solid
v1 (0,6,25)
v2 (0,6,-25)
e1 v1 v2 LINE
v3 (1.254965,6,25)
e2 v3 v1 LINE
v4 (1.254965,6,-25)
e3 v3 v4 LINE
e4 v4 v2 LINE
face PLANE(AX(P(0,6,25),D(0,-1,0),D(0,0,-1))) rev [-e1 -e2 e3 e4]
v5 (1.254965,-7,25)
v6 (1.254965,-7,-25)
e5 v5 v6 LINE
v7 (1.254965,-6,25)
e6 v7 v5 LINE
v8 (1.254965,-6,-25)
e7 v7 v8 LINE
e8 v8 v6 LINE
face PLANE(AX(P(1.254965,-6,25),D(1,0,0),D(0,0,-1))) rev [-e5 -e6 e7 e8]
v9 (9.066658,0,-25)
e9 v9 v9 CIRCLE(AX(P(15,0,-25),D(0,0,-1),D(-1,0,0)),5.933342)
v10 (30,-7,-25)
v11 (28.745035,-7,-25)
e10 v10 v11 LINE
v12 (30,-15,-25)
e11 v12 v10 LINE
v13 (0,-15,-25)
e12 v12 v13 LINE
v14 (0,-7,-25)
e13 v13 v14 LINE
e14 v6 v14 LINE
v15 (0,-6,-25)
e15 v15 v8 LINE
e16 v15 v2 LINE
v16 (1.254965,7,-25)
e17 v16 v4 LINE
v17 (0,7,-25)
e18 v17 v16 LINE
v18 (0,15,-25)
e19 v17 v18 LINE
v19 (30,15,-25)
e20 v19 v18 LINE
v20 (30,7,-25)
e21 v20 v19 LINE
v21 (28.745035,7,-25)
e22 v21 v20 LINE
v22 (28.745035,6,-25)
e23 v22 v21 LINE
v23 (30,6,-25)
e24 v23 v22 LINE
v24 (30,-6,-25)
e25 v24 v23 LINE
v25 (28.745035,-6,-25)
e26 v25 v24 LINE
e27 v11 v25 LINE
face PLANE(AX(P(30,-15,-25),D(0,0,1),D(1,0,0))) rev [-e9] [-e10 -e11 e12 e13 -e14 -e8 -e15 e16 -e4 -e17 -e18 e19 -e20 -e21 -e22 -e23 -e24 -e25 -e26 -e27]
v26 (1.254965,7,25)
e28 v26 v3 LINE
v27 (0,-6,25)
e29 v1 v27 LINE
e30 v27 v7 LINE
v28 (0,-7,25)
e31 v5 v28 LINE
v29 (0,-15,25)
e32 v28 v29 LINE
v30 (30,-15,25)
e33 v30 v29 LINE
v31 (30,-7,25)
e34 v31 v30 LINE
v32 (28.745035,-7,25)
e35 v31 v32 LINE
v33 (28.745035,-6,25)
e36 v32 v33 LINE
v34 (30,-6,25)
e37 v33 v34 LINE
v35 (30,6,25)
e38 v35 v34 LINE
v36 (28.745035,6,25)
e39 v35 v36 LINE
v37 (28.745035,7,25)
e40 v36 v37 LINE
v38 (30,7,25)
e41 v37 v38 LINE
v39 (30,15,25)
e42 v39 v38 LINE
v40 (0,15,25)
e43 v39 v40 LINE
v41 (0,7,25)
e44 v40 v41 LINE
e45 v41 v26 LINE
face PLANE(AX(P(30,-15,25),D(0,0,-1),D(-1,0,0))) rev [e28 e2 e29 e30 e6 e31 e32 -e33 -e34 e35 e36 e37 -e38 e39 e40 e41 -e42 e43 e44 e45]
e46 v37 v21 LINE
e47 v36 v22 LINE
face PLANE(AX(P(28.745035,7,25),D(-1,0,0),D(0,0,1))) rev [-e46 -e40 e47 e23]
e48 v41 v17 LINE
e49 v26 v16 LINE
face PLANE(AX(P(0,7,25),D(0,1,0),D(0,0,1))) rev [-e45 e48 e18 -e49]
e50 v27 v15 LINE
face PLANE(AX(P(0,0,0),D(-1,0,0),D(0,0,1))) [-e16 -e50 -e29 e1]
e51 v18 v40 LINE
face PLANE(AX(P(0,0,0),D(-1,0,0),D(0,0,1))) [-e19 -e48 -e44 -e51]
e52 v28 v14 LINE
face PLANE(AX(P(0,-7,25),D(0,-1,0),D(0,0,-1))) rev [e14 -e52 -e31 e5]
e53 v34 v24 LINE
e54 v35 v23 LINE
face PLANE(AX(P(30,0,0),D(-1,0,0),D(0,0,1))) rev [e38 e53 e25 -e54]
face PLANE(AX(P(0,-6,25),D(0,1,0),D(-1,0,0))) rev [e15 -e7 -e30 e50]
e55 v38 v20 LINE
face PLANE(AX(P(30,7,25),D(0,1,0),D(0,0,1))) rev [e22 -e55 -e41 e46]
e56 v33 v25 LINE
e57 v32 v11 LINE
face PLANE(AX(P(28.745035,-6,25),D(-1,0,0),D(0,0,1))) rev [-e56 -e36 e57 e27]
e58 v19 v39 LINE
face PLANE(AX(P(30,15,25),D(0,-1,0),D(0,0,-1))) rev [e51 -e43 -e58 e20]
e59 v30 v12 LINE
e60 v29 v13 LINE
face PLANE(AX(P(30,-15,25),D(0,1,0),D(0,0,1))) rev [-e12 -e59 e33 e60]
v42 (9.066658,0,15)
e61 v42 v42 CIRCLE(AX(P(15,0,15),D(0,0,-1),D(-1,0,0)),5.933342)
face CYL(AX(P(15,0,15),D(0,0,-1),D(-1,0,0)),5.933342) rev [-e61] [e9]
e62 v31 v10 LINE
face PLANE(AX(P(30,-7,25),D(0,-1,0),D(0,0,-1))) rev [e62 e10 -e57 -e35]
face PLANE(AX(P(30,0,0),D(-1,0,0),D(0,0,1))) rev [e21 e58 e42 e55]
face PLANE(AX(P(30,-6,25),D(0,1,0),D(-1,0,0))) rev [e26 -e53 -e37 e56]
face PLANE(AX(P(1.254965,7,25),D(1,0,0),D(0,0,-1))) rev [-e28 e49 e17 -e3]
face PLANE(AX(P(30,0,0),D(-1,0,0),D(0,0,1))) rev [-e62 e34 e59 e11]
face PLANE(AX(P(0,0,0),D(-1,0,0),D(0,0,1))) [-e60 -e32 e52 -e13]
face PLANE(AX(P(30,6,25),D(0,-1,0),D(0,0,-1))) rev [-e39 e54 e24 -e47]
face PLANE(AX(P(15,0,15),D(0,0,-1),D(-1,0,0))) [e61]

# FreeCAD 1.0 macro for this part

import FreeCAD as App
import Part
import Sketcher

V = App.Vector

doc = App.newDocument("Part")
body = doc.addObject("PartDesign::Body", "Body")

# Sketch on YZ plane
sketch1 = body.newObject("Sketcher::SketchObject", "Sketch")
sketch1.AttachmentSupport = (doc.getObject("YZ_Plane"), [""])
sketch1.MapMode = "FlatFace"
sketch1.addGeometry(Part.LineSegment(V(15, 25, 0), V(-15, 25, 0)), False)
sketch1.addGeometry(Part.LineSegment(V(-15, 25, 0), V(-15, -25, 0)), False)
sketch1.addGeometry(Part.LineSegment(V(-15, -25, 0), V(15, -25, 0)), False)
sketch1.addGeometry(Part.LineSegment(V(15, -25, 0), V(15, 25, 0)), False)
sketch1.addConstraint(Sketcher.Constraint("Coincident", 0, 2, 1, 1))
sketch1.addConstraint(Sketcher.Constraint("Coincident", 1, 2, 2, 1))
sketch1.addConstraint(Sketcher.Constraint("Coincident", 2, 2, 3, 1))
sketch1.addConstraint(Sketcher.Constraint("Coincident", 3, 2, 0, 1))
sketch1.addConstraint(Sketcher.Constraint("Horizontal", 0))
sketch1.addConstraint(Sketcher.Constraint("Vertical", 1))
sketch1.addConstraint(Sketcher.Constraint("Horizontal", 2))
sketch1.addConstraint(Sketcher.Constraint("Vertical", 3))
sketch1.addConstraint(Sketcher.Constraint("Symmetric", 0, 2, 2, 2, -1, 1))
sketch1.addConstraint(Sketcher.Constraint("DistanceX", 0, 2, 0, 1, 30.0))
sketch1.addConstraint(Sketcher.Constraint("DistanceY", 1, 2, 1, 1, 50.0))
pad1 = body.newObject("PartDesign::Pad", "Pad")
pad1.Profile = sketch1
pad1.Length = 30

# Sketch on XY plane
sketch2 = body.newObject("Sketcher::SketchObject", "Sketch001")
sketch2.AttachmentSupport = (doc.getObject("XY_Plane"), [""])
sketch2.MapMode = "FlatFace"
sketch2.AttachmentOffset = App.Placement(V(0, 0, -25), App.Rotation())
sketch2.addGeometry(Part.Circle(V(15, 0, 0), V(0, 0, 1), 5.933342), False)
sketch2.addConstraint(Sketcher.Constraint("PointOnObject", 0, 3, -1))
sketch2.addConstraint(Sketcher.Constraint("DistanceX", -1, 1, 0, 3, 15.0))
sketch2.addConstraint(Sketcher.Constraint("Diameter", 0, 11.866684))
pocket1 = body.newObject("PartDesign::Pocket", "Pocket")
pocket1.Profile = sketch2
pocket1.Length = 40
pocket1.Reversed = True

# Sketch on XY plane
sketch3 = body.newObject("Sketcher::SketchObject", "Sketch002")
sketch3.AttachmentSupport = (doc.getObject("XY_Plane"), [""])
sketch3.MapMode = "FlatFace"
sketch3.AttachmentOffset = App.Placement(V(0, 0, -25), App.Rotation())
sketch3.addGeometry(Part.LineSegment(V(30, 7, 0), V(30, 6, 0)), False)
sketch3.addGeometry(Part.LineSegment(V(30, 6, 0), V(28.745035, 6, 0)), False)
sketch3.addGeometry(Part.LineSegment(V(28.745035, 6, 0), V(28.745035, 7, 0)), False)
sketch3.addGeometry(Part.LineSegment(V(28.745035, 7, 0), V(30, 7, 0)), False)
sketch3.addGeometry(Part.LineSegment(V(30, -6, 0), V(30, -7, 0)), False)
sketch3.addGeometry(Part.LineSegment(V(30, -7, 0), V(28.745035, -7, 0)), False)
sketch3.addGeometry(Part.LineSegment(V(28.745035, -7, 0), V(28.745035, -6, 0)), False)
sketch3.addGeometry(Part.LineSegment(V(28.745035, -6, 0), V(30, -6, 0)), False)
sketch3.addGeometry(Part.LineSegment(V(1.254965, -6, 0), V(1.254965, -7, 0)), False)
sketch3.addGeometry(Part.LineSegment(V(1.254965, -7, 0), V(0, -7, 0)), False)
sketch3.addGeometry(Part.LineSegment(V(0, -7, 0), V(0, -6, 0)), False)
sketch3.addGeometry(Part.LineSegment(V(0, -6, 0), V(1.254965, -6, 0)), False)
sketch3.addGeometry(Part.LineSegment(V(1.254965, 7, 0), V(1.254965, 6, 0)), False)
sketch3.addGeometry(Part.LineSegment(V(1.254965, 6, 0), V(0, 6, 0)), False)
sketch3.addGeometry(Part.LineSegment(V(0, 6, 0), V(0, 7, 0)), False)
sketch3.addGeometry(Part.LineSegment(V(0, 7, 0), V(1.254965, 7, 0)), False)
sketch3.addConstraint(Sketcher.Constraint("Coincident", 0, 2, 1, 1))
sketch3.addConstraint(Sketcher.Constraint("Coincident", 1, 2, 2, 1))
sketch3.addConstraint(Sketcher.Constraint("Coincident", 2, 2, 3, 1))
sketch3.addConstraint(Sketcher.Constraint("Coincident", 3, 2, 0, 1))
sketch3.addConstraint(Sketcher.Constraint("Coincident", 4, 2, 5, 1))
sketch3.addConstraint(Sketcher.Constraint("Coincident", 5, 2, 6, 1))
sketch3.addConstraint(Sketcher.Constraint("Coincident", 6, 2, 7, 1))
sketch3.addConstraint(Sketcher.Constraint("Coincident", 7, 2, 4, 1))
sketch3.addConstraint(Sketcher.Constraint("Coincident", 8, 2, 9, 1))
sketch3.addConstraint(Sketcher.Constraint("Coincident", 9, 2, 10, 1))
sketch3.addConstraint(Sketcher.Constraint("Coincident", 10, 2, 11, 1))
sketch3.addConstraint(Sketcher.Constraint("Coincident", 11, 2, 8, 1))
sketch3.addConstraint(Sketcher.Constraint("Coincident", 12, 2, 13, 1))
sketch3.addConstraint(Sketcher.Constraint("Coincident", 13, 2, 14, 1))
sketch3.addConstraint(Sketcher.Constraint("Coincident", 14, 2, 15, 1))
sketch3.addConstraint(Sketcher.Constraint("Coincident", 15, 2, 12, 1))
sketch3.addConstraint(Sketcher.Constraint("Vertical", 0))
sketch3.addConstraint(Sketcher.Constraint("Horizontal", 1))
sketch3.addConstraint(Sketcher.Constraint("Vertical", 2))
sketch3.addConstraint(Sketcher.Constraint("Horizontal", 3))
sketch3.addConstraint(Sketcher.Constraint("Vertical", 4))
sketch3.addConstraint(Sketcher.Constraint("Horizontal", 5))
sketch3.addConstraint(Sketcher.Constraint("Vertical", 6))
sketch3.addConstraint(Sketcher.Constraint("Horizontal", 7))
sketch3.addConstraint(Sketcher.Constraint("Vertical", 8))
sketch3.addConstraint(Sketcher.Constraint("Horizontal", 9))
sketch3.addConstraint(Sketcher.Constraint("Vertical", 10))
sketch3.addConstraint(Sketcher.Constraint("Horizontal", 11))
sketch3.addConstraint(Sketcher.Constraint("Vertical", 12))
sketch3.addConstraint(Sketcher.Constraint("Horizontal", 13))
sketch3.addConstraint(Sketcher.Constraint("Vertical", 14))
sketch3.addConstraint(Sketcher.Constraint("Horizontal", 15))
sketch3.addConstraint(Sketcher.Constraint("Symmetric", 10, 2, 13, 2, -1, 1))
sketch3.addConstraint(Sketcher.Constraint("Symmetric", 3, 2, 4, 2, -1))
sketch3.addConstraint(Sketcher.Constraint("Symmetric", 1, 2, 6, 2, -1))
sketch3.addConstraint(Sketcher.Constraint("Symmetric", 9, 2, 14, 2, -1))
sketch3.addConstraint(Sketcher.Constraint("Horizontal", 5, 2, 8, 2))
sketch3.addConstraint(Sketcher.Constraint("Horizontal", 7, 2, 10, 2))
sketch3.addConstraint(Sketcher.Constraint("Vertical", 11, 2, 12, 2))
sketch3.addConstraint(Sketcher.Constraint("Equal", 7, 9))
sketch3.addConstraint(Sketcher.Constraint("DistanceY", 0, 2, 0, 1, 1.0))
sketch3.addConstraint(Sketcher.Constraint("DistanceX", -1, 1, 0, 2, 30.0))
sketch3.addConstraint(Sketcher.Constraint("DistanceY", -1, 1, 0, 2, 6.0))
sketch3.addConstraint(Sketcher.Constraint("DistanceX", 1, 2, 1, 1, 1.254965))
pocket2 = body.newObject("PartDesign::Pocket", "Pocket001")
pocket2.Profile = sketch3
pocket2.Type = "ThroughAll"
pocket2.Reversed = True

doc.recompute()
